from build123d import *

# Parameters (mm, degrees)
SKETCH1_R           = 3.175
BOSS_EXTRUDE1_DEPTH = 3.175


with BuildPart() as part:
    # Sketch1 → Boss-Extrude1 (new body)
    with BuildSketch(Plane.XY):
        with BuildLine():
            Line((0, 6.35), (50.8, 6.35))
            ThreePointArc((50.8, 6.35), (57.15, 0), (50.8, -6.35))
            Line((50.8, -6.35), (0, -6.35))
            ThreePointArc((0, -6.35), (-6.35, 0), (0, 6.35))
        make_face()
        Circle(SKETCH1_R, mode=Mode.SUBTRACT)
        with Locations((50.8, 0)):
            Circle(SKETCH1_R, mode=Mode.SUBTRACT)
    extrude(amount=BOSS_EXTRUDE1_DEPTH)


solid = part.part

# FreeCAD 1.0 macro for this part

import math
import FreeCAD as App
import Part
import Sketcher
Q = App.Units.Quantity

doc = App.newDocument("Part")
body = doc.addObject("PartDesign::Body", "Body")

# Sketch on XY plane
sketch1 = body.newObject("Sketcher::SketchObject", "Sketch")
sketch1.AttachmentSupport = (doc.getObject("XY_Plane"), [""])
sketch1.MapMode = "FlatFace"
sketch1.addGeometry([
    Part.LineSegment(App.Vector(50.8, 6.3, 0), App.Vector(0, 6.3, 0)),  # 0
    Part.ArcOfCircle(Part.Circle(App.Vector(0, 0, 0), App.Vector(0, 0, 1), 6.3), math.radians(90), math.radians(270)),  # 1
    Part.LineSegment(App.Vector(0, -6.3, 0), App.Vector(50.8, -6.3, 0)),  # 2
    Part.ArcOfCircle(Part.Circle(App.Vector(50.8, 0, 0), App.Vector(0, 0, 1), 6.3), math.radians(-90), math.radians(90)),  # 3
    Part.Circle(App.Vector(50.8, 0, 0), App.Vector(0, 0, 1), 3.2),  # 4
    Part.Circle(App.Vector(0, 0, 0), App.Vector(0, 0, 1), 3.2),  # 5
], False)
sketch1.addConstraint([
    Sketcher.Constraint("Tangent", 0, 2, 1, 1),
    Sketcher.Constraint("Tangent", 1, 2, 2, 1),
    Sketcher.Constraint("Tangent", 2, 2, 3, 1),
    Sketcher.Constraint("Tangent", 3, 2, 0, 1),
    Sketcher.Constraint("Horizontal", 0),
    Sketcher.Constraint("Horizontal", 2),
    Sketcher.Constraint("Coincident", 1, 3, -1, 1),
    Sketcher.Constraint("Coincident", 5, 3, -1, 1),
    Sketcher.Constraint("Coincident", 4, 3, 3, 3),
    Sketcher.Constraint("Equal", 4, 5),
    Sketcher.Constraint("Diameter", 4, Q("0.25 in")),
    Sketcher.Constraint("DistanceX", 0, 2, 0, 1, Q("2 in")),
    Sketcher.Constraint("Radius", 1, Q("0.25 in")),
])
pad1 = body.newObject("PartDesign::Pad", "Pad")
pad1.Profile = sketch1
pad1.Length = Q("0.125 in")

doc.recompute()
